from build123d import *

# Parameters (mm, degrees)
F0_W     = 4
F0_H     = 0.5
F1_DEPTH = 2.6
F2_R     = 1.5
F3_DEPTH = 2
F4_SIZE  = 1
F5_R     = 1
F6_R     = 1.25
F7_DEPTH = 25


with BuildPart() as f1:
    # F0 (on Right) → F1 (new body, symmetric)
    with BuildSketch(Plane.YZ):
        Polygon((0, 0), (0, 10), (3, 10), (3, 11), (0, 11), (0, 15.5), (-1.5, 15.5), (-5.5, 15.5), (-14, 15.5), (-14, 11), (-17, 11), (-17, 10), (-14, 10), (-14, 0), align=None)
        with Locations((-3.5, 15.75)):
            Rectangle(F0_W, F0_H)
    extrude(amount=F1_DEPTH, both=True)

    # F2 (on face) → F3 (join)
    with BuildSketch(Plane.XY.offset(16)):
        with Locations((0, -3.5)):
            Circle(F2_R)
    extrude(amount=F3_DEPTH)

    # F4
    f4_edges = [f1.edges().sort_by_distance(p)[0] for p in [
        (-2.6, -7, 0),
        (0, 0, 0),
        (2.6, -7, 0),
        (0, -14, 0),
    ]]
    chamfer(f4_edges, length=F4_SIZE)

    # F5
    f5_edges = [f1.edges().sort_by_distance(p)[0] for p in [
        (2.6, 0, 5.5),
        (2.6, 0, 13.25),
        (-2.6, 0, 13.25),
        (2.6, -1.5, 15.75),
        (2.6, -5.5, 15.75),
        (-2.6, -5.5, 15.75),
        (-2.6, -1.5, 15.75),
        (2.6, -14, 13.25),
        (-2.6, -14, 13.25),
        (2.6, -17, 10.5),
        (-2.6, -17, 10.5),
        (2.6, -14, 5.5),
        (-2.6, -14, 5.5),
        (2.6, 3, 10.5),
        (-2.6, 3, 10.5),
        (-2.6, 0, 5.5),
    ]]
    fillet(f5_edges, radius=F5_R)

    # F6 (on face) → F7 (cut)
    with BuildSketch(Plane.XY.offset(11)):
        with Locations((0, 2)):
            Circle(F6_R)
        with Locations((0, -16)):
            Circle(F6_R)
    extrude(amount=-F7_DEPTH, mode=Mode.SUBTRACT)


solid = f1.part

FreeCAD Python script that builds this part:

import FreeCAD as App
import Part
import Sketcher
from FreeCAD import Vector
Q = App.Units.Quantity


def edges_at(feature, points):
    """Names of the edges that pass closest to the given points."""
    edges = feature.Shape.Edges
    near = lambda p: min(range(len(edges)), key=lambda i: edges[i].distToShape(Part.Vertex(*p))[0])
    return sorted({f"Edge{near(p) + 1}" for p in points})

doc = App.newDocument("Part")
body = doc.addObject("PartDesign::Body", "Body")

# Sketch on YZ plane
sketch1 = body.newObject("Sketcher::SketchObject", "Sketch")
sketch1.AttachmentSupport = (doc.getObject("YZ_Plane"), [""])
sketch1.MapMode = "FlatFace"
sketch1.addGeometry([
    Part.LineSegment(Vector(0, 0, 0), Vector(0, 10, 0)),  # 0
    Part.LineSegment(Vector(0, 10, 0), Vector(3, 10, 0)),  # 1
    Part.LineSegment(Vector(3, 10, 0), Vector(3, 11, 0)),  # 2
    Part.LineSegment(Vector(3, 11, 0), Vector(0, 11, 0)),  # 3
    Part.LineSegment(Vector(0, 11, 0), Vector(0, 15.5, 0)),  # 4
    Part.LineSegment(Vector(0, 15.5, 0), Vector(-1.5, 15.5, 0)),  # 5
    Part.LineSegment(Vector(-1.5, 15.5, 0), Vector(-1.5, 16, 0)),  # 6
    Part.LineSegment(Vector(-1.5, 16, 0), Vector(-5.5, 16, 0)),  # 7
    Part.LineSegment(Vector(-5.5, 16, 0), Vector(-5.5, 15.5, 0)),  # 8
    Part.LineSegment(Vector(-5.5, 15.5, 0), Vector(-14, 15.5, 0)),  # 9
    Part.LineSegment(Vector(-14, 15.5, 0), Vector(-14, 11, 0)),  # 10
    Part.LineSegment(Vector(-14, 11, 0), Vector(-17, 11, 0)),  # 11
    Part.LineSegment(Vector(-17, 11, 0), Vector(-17, 10, 0)),  # 12
    Part.LineSegment(Vector(-17, 10, 0), Vector(-14, 10, 0)),  # 13
    Part.LineSegment(Vector(-14, 10, 0), Vector(-14, 0, 0)),  # 14
    Part.LineSegment(Vector(-14, 0, 0), Vector(0, 0, 0)),  # 15
], False)
sketch1.addConstraint([
    Sketcher.Constraint("Coincident", 0, 2, 1, 1),
    Sketcher.Constraint("Coincident", 1, 2, 2, 1),
    Sketcher.Constraint("Coincident", 2, 2, 3, 1),
    Sketcher.Constraint("Coincident", 3, 2, 4, 1),
    Sketcher.Constraint("Coincident", 4, 2, 5, 1),
    Sketcher.Constraint("Coincident", 5, 2, 6, 1),
    Sketcher.Constraint("Coincident", 6, 2, 7, 1),
    Sketcher.Constraint("Coincident", 7, 2, 8, 1),
    Sketcher.Constraint("Coincident", 8, 2, 9, 1),
    Sketcher.Constraint("Coincident", 9, 2, 10, 1),
    Sketcher.Constraint("Coincident", 10, 2, 11, 1),
    Sketcher.Constraint("Coincident", 11, 2, 12, 1),
    Sketcher.Constraint("Coincident", 12, 2, 13, 1),
    Sketcher.Constraint("Coincident", 13, 2, 14, 1),
    Sketcher.Constraint("Coincident", 14, 2, 15, 1),
    Sketcher.Constraint("Coincident", 15, 2, 0, 1),
    Sketcher.Constraint("Vertical", 0),
    Sketcher.Constraint("Horizontal", 1),
    Sketcher.Constraint("Vertical", 2),
    Sketcher.Constraint("Horizontal", 3),
    Sketcher.Constraint("Vertical", 4),
    Sketcher.Constraint("Horizontal", 5),
    Sketcher.Constraint("Vertical", 6),
    Sketcher.Constraint("Horizontal", 7),
    Sketcher.Constraint("Vertical", 8),
    Sketcher.Constraint("Horizontal", 9),
    Sketcher.Constraint("Vertical", 10),
    Sketcher.Constraint("Horizontal", 11),
    Sketcher.Constraint("Vertical", 12),
    Sketcher.Constraint("Horizontal", 13),
    Sketcher.Constraint("Vertical", 14),
    Sketcher.Constraint("Horizontal", 15),
    Sketcher.Constraint("Coincident", 15, 2, -1, 1),
    Sketcher.Constraint("PointOnObject", 3, 2, -2),
    Sketcher.Constraint("Horizontal", 5, 2, 8, 2),
    Sketcher.Constraint("Horizontal", 3, 2, 10, 2),
    Sketcher.Constraint("Horizontal", 1, 2, 12, 2),
    Sketcher.Constraint("Vertical", 10, 2, 13, 2),
    Sketcher.Constraint("Equal", 3, 11),
    Sketcher.Constraint("DistanceX", 1, 1, 1, 2, Q("3 mm")),
    Sketcher.Constraint("DistanceX", 7, 2, 7, 1, Q("4 mm")),
    Sketcher.Constraint("DistanceX", 15, 1, 15, 2, Q("14 mm")),
    Sketcher.Constraint("DistanceY", 0, 1, 0, 2, Q("10 mm")),
    Sketcher.Constraint("DistanceY", 2, 1, 2, 2, Q("1 mm")),
    Sketcher.Constraint("DistanceX", 5, 2, 5, 1, Q("1.5 mm")),
    Sketcher.Constraint("DistanceY", 4, 1, 4, 2, Q("4.5 mm")),
    Sketcher.Constraint("DistanceY", 6, 1, 6, 2, Q("0.5 mm")),
])
pad1 = body.newObject("PartDesign::Pad", "Pad")
pad1.Profile = sketch1
pad1.Length = 5.2
pad1.Midplane = True

# Sketch on XY plane
sketch2 = body.newObject("Sketcher::SketchObject", "Sketch001")
sketch2.AttachmentSupport = (doc.getObject("XY_Plane"), [""])
sketch2.MapMode = "FlatFace"
sketch2.AttachmentOffset = App.Placement(Vector(0, 0, 16), App.Rotation())
sketch2.addGeometry(Part.Circle(Vector(0, -3.5, 0), Vector(0, 0, 1), 1.5), False)
sketch2.addConstraint([
    Sketcher.Constraint("PointOnObject", 0, 3, -2),
    Sketcher.Constraint("Diameter", 0, Q("3 mm")),
    Sketcher.Constraint("DistanceY", 0, 3, -1, 1, Q("3.5 mm")),
])
pad2 = body.newObject("PartDesign::Pad", "Pad001")
pad2.Profile = sketch2
pad2.Length = 2
doc.recompute()

chamfer = body.newObject("PartDesign::Chamfer", "Chamfer")
chamfer.Base = (pad2, edges_at(pad2, [
    (-2.6, -7, 0),
    (0, 0, 0),
    (2.6, -7, 0),
    (0, -14, 0),
]))
chamfer.Size = 1
doc.recompute()

fillet = body.newObject("PartDesign::Fillet", "Fillet")
fillet.Base = (chamfer, edges_at(chamfer, [
    (2.6, 0, 5.5),
    (2.6, 0, 13.25),
    (-2.6, 0, 13.25),
    (2.6, -1.5, 15.75),
    (2.6, -5.5, 15.75),
    (-2.6, -5.5, 15.75),
    (-2.6, -1.5, 15.75),
    (2.6, -14, 13.25),
    (-2.6, -14, 13.25),
    (2.6, -17, 10.5),
    (-2.6, -17, 10.5),
    (2.6, -14, 5.5),
    (-2.6, -14, 5.5),
    (2.6, 3, 10.5),
    (-2.6, 3, 10.5),
    (-2.6, 0, 5.5),
]))
fillet.Radius = 1

# Sketch on XY plane
sketch3 = body.newObject("Sketcher::SketchObject", "Sketch002")
sketch3.AttachmentSupport = (doc.getObject("XY_Plane"), [""])
sketch3.MapMode = "FlatFace"
sketch3.AttachmentOffset = App.Placement(Vector(0, 0, 11), App.Rotation())
sketch3.addGeometry([
    Part.Circle(Vector(0, 2, 0), Vector(0, 0, 1), 1.2),
    Part.Circle(Vector(0, -16, 0), Vector(0, 0, 1), 1.2),
], False)
sketch3.addConstraint([
    Sketcher.Constraint("Equal", 0, 1),
    Sketcher.Constraint("PointOnObject", 0, 3, -2),
    Sketcher.Constraint("PointOnObject", 1, 3, -2),
    Sketcher.Constraint("Diameter", 0, Q("2.5 mm")),
    Sketcher.Constraint("DistanceY", -1, 1, 0, 3, Q("2 mm")),
    Sketcher.Constraint("DistanceY", 1, 3, -1, 1, Q("16 mm")),
])
pocket1 = body.newObject("PartDesign::Pocket", "Pocket")
pocket1.Profile = sketch3
pocket1.Length = 25

doc.recompute()
